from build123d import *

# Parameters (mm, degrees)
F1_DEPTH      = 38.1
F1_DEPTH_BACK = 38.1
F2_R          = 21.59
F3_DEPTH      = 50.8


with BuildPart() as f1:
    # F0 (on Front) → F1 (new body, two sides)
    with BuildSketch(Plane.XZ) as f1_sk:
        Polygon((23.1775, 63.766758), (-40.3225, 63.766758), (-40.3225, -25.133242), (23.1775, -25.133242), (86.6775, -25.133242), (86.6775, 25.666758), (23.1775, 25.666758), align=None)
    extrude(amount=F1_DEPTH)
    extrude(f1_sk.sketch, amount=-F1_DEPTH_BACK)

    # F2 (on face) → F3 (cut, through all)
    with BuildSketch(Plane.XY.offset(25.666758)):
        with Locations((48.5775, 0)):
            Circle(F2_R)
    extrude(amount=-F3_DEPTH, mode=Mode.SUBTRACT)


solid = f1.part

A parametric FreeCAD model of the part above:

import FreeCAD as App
import Part
import Sketcher

V = App.Vector
Q = App.Units.Quantity

doc = App.newDocument("Part")
params = doc.addObject("Spreadsheet::Sheet", "Params")
for row, (alias, value) in enumerate([
    ("sketch1_width", "5 in"),
    ("sketch1_height", "2 in"),
    ("sketch1_height2", "3.5 in"),
    ("pad1_length", "1.5 in"),
    ("pad1_length2", "1.5 in"),
    ("sketch2_diameter", "1.7 in"),
], start=1):
    params.set(f"A{row}", alias)
    params.set(f"B{row}", "=" + value)
    params.setAlias(f"B{row}", alias)

body = doc.addObject("PartDesign::Body", "Body")

# Sketch on XZ plane
sketch1 = body.newObject("Sketcher::SketchObject", "Sketch")
sketch1.AttachmentSupport = (doc.getObject("XZ_Plane"), [""])
sketch1.MapMode = "FlatFace"
sketch1.addGeometry([
    Part.LineSegment(V(23.1775, 63.766758, 0), V(-40.3225, 63.766758, 0)),  # 0
    Part.LineSegment(V(-40.3225, 63.766758, 0), V(-40.3225, -25.133242, 0)),  # 1
    Part.LineSegment(V(-40.3225, -25.133242, 0), V(86.6775, -25.133242, 0)),  # 2
    Part.LineSegment(V(86.6775, -25.133242, 0), V(86.6775, 25.666758, 0)),  # 3
    Part.LineSegment(V(86.6775, 25.666758, 0), V(23.1775, 25.666758, 0)),  # 4
    Part.LineSegment(V(23.1775, 25.666758, 0), V(23.1775, 63.766758, 0)),  # 5
], False)
sketch1.addConstraint([
    Sketcher.Constraint("Coincident", 0, 2, 1, 1),
    Sketcher.Constraint("Coincident", 1, 2, 2, 1),
    Sketcher.Constraint("Coincident", 2, 2, 3, 1),
    Sketcher.Constraint("Coincident", 3, 2, 4, 1),
    Sketcher.Constraint("Coincident", 4, 2, 5, 1),
    Sketcher.Constraint("Coincident", 5, 2, 0, 1),
    Sketcher.Constraint("Horizontal", 0),
    Sketcher.Constraint("Vertical", 1),
    Sketcher.Constraint("Horizontal", 2),
    Sketcher.Constraint("Vertical", 3),
    Sketcher.Constraint("Horizontal", 4),
    Sketcher.Constraint("Vertical", 5),
    Sketcher.Constraint("Equal", 0, 4),
    Sketcher.Constraint("DistanceX", 2, 1, 2, 2, Q("5 in")),
    Sketcher.Constraint("DistanceY", 3, 1, 3, 2, Q("2 in")),
    Sketcher.Constraint("DistanceY", 1, 2, 1, 1, Q("3.5 in")),
    Sketcher.Constraint("DistanceX", 0, 2, -1, 1, Q("1.5875 in")),
    Sketcher.Constraint("DistanceY", -1, 1, 0, 2, Q("63.766758 mm")),
])
sketch1.setExpression("Constraints[13]", "Params.sketch1_width")
sketch1.setExpression("Constraints[14]", "Params.sketch1_height")
sketch1.setExpression("Constraints[15]", "Params.sketch1_height2")
pad1 = body.newObject("PartDesign::Pad", "Pad")
pad1.Profile = sketch1
pad1.Type = "TwoLengths"
pad1.setExpression("Length", "Params.pad1_length")
pad1.setExpression("Length2", "Params.pad1_length2")

# Sketch on XY plane
sketch2 = body.newObject("Sketcher::SketchObject", "Sketch001")
sketch2.AttachmentSupport = (doc.getObject("XY_Plane"), [""])
sketch2.MapMode = "FlatFace"
sketch2.AttachmentOffset = App.Placement(V(0, 0, 25.666758), App.Rotation())
sketch2.addGeometry(Part.Circle(V(48.5775, 0, 0), V(0, 0, 1), 21.59), False)
sketch2.addConstraint([
    Sketcher.Constraint("PointOnObject", 0, 3, -1),
    Sketcher.Constraint("Diameter", 0, Q("1.7 in")),
    Sketcher.Constraint("DistanceX", -1, 1, 0, 3, Q("1.9125 in")),
])
sketch2.setExpression("Constraints[1]", "Params.sketch2_diameter")
pocket1 = body.newObject("PartDesign::Pocket", "Pocket")
pocket1.Profile = sketch2
pocket1.Type = "ThroughAll"

doc.recompute()
